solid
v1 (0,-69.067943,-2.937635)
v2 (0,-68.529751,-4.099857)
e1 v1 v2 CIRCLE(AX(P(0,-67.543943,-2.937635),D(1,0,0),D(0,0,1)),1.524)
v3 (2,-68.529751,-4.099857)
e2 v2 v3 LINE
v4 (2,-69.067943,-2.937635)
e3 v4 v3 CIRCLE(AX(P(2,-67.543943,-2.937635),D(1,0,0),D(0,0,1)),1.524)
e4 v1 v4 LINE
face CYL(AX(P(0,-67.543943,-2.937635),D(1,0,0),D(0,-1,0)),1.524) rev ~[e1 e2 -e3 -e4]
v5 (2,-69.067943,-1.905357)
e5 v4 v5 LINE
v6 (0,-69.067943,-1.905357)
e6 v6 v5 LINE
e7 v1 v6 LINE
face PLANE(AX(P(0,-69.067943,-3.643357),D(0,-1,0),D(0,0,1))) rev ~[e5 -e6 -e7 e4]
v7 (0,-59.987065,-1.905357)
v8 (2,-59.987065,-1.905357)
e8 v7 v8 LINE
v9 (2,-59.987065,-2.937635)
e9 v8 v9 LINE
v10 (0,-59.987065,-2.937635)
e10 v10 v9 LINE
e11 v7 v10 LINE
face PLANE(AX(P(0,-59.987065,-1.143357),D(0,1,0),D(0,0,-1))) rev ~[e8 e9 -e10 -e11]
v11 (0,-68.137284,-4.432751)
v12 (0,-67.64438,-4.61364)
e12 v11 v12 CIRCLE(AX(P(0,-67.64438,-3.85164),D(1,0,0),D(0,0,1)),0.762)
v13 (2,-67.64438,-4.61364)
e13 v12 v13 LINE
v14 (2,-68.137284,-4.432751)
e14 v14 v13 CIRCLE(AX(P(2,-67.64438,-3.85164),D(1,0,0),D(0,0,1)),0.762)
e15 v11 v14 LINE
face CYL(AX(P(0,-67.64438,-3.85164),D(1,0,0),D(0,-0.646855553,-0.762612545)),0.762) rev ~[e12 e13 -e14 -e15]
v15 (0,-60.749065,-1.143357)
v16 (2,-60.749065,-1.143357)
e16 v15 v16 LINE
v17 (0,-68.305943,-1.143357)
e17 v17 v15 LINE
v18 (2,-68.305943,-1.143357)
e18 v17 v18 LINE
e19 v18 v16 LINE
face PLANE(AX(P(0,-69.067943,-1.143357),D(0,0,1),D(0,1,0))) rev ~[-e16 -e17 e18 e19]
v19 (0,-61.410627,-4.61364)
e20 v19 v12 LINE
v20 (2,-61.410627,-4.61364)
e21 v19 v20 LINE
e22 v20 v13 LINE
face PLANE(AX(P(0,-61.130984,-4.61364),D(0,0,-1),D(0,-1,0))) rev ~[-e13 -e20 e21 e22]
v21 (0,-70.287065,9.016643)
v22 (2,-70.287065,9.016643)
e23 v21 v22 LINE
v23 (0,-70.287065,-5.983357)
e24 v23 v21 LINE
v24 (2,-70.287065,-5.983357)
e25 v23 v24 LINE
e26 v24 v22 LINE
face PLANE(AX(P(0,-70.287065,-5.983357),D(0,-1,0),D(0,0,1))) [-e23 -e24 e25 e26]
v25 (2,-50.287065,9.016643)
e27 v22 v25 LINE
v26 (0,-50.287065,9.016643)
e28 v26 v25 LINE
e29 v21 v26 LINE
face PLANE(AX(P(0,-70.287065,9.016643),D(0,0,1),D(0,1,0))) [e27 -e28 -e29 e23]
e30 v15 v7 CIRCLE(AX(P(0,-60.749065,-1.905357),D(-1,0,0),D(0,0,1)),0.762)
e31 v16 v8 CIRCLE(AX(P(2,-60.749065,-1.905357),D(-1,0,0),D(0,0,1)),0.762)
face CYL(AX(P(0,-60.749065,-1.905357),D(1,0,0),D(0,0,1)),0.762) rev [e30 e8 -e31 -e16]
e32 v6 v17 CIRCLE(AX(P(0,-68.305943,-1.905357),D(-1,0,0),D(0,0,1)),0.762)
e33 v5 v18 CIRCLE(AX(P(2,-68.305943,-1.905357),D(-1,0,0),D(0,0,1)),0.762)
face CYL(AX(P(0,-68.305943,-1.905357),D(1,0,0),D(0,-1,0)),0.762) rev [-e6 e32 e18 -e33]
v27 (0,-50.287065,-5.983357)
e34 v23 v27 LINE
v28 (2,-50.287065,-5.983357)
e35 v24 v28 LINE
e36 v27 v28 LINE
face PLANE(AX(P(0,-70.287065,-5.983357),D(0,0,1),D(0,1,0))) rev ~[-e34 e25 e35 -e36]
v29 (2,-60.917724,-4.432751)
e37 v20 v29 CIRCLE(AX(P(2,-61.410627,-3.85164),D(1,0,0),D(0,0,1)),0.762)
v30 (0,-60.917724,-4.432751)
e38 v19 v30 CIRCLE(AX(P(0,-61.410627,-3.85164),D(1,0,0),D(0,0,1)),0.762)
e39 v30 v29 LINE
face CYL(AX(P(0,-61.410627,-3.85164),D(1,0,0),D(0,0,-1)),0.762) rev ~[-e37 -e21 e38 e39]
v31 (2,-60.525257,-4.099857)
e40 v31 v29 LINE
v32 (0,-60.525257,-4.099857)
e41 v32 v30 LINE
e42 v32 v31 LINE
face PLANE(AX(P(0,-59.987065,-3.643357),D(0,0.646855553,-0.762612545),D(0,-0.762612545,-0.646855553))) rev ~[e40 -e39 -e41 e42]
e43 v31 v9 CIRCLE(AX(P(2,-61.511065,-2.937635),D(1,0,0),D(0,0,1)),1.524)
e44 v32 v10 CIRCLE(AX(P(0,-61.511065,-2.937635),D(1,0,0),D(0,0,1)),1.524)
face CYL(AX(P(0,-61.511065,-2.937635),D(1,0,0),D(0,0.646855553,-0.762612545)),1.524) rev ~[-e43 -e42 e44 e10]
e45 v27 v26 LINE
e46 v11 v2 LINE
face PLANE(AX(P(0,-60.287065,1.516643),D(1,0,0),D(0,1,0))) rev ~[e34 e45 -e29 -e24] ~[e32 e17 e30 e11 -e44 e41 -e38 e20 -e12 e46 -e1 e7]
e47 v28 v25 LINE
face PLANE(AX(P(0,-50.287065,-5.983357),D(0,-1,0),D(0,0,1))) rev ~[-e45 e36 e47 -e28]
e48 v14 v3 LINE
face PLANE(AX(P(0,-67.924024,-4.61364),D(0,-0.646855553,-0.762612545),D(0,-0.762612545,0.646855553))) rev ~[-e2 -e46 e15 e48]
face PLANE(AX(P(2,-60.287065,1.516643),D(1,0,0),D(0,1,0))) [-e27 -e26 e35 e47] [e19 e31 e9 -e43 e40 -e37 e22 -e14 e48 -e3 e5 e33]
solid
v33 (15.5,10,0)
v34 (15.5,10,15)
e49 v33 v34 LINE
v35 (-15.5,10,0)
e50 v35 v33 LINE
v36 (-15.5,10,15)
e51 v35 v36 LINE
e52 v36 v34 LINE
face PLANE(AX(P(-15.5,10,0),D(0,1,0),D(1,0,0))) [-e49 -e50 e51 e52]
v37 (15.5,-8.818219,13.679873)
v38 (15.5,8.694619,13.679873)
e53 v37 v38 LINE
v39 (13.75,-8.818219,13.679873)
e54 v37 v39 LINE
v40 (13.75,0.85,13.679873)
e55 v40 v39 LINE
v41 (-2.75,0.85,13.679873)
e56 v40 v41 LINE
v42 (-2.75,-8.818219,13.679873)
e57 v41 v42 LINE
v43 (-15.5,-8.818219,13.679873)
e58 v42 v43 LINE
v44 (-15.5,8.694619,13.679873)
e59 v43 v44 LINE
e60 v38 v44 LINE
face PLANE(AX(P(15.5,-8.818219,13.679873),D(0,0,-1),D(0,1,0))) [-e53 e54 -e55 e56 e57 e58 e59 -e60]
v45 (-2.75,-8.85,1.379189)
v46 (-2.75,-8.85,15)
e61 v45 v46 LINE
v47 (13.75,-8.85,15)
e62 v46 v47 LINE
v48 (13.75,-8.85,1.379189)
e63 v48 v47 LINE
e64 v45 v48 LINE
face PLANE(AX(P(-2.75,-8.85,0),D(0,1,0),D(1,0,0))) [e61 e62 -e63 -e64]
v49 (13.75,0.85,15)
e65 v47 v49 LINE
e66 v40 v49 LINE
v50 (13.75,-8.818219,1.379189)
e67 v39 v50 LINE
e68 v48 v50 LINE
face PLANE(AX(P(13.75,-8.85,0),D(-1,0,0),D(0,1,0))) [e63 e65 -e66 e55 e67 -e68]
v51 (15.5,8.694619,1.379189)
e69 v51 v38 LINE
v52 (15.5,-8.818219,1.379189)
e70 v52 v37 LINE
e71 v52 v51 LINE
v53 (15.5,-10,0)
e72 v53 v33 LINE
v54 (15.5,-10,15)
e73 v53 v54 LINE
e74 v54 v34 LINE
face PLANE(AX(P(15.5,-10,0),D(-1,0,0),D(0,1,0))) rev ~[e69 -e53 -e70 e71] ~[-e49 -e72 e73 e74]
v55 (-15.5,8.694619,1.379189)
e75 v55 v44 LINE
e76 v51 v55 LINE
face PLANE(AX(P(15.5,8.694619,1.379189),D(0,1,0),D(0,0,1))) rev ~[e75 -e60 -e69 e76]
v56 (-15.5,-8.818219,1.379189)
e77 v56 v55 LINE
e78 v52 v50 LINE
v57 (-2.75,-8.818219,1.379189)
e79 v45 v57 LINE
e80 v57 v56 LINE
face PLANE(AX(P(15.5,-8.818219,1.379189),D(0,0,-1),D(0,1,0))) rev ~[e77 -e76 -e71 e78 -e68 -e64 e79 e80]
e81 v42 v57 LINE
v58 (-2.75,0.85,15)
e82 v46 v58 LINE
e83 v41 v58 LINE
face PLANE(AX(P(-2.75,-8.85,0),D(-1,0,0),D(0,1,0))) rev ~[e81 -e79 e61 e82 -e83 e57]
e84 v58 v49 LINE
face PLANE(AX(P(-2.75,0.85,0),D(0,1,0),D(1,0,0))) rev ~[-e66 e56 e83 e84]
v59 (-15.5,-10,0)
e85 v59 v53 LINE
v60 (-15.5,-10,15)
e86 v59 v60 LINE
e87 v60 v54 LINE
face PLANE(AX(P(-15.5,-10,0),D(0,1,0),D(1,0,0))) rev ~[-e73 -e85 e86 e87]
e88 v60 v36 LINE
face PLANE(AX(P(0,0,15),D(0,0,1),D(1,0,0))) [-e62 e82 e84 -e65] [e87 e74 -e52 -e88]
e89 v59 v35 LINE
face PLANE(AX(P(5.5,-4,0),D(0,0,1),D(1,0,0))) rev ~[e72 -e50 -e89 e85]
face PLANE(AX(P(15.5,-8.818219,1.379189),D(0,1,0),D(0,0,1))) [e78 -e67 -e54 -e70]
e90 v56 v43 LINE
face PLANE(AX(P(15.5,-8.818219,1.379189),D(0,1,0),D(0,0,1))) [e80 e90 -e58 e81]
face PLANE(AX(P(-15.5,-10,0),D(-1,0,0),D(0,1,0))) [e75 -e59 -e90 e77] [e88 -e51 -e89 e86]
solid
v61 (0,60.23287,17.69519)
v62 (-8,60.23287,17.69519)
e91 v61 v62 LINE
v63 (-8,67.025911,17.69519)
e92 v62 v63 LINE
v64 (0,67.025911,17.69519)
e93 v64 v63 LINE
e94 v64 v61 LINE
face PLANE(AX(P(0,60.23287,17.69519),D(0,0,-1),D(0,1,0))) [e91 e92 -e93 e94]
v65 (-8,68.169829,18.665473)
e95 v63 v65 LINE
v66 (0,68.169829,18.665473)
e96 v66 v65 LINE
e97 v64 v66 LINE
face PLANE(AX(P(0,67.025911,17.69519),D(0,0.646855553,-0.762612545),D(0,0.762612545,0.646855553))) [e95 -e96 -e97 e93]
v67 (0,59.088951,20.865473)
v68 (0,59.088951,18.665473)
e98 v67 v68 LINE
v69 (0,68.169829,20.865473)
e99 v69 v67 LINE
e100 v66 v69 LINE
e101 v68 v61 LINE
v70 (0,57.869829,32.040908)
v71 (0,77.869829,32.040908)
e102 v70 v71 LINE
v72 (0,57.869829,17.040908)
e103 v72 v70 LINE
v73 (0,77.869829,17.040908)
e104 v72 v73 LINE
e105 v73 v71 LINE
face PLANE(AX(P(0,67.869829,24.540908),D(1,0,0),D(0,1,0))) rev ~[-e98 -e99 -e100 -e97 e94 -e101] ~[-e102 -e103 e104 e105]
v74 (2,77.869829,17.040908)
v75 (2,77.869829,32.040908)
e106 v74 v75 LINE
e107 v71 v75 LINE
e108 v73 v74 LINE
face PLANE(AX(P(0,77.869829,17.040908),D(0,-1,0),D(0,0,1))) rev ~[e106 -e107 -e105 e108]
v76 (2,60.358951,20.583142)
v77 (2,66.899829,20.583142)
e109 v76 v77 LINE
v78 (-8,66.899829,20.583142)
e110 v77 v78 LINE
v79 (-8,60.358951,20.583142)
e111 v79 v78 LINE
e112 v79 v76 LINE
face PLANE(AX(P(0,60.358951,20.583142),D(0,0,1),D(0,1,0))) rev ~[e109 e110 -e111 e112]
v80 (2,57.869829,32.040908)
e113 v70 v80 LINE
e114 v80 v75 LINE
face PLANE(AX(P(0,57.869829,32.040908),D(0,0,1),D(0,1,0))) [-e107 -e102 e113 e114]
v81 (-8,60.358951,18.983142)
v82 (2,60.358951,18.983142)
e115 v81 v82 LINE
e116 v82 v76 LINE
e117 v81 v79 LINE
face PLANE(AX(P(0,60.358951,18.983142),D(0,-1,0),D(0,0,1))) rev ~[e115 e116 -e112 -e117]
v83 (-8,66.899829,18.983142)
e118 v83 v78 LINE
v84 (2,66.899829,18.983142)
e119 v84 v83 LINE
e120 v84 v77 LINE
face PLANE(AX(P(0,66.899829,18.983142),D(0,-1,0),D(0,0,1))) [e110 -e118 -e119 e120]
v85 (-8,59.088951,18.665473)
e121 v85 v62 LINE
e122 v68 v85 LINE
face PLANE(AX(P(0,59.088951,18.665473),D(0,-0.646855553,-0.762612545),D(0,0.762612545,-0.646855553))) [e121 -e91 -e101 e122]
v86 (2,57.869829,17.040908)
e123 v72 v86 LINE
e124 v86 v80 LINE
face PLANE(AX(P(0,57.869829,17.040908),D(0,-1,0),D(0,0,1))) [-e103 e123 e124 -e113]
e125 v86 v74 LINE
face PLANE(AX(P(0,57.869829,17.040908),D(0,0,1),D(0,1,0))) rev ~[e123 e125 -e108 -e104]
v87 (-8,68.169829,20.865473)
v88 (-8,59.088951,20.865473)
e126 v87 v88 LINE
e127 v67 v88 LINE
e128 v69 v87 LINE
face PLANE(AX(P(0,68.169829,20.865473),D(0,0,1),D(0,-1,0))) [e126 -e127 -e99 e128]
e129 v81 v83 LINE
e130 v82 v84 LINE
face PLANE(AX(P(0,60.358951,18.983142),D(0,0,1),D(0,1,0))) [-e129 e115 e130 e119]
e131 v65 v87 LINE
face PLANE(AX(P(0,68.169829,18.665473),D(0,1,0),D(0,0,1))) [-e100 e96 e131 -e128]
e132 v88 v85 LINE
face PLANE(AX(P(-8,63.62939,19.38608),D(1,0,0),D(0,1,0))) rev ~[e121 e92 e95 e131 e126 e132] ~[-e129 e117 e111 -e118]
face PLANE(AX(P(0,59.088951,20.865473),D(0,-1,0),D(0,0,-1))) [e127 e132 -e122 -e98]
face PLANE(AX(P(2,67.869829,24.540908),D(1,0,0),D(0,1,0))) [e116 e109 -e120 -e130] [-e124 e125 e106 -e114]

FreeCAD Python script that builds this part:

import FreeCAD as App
import Part
import Sketcher
from FreeCAD import Vector
Q = App.Units.Quantity


def edges_at(feature, points):
    """Names of the edges that pass closest to the given points."""
    edges = feature.Shape.Edges
    near = lambda p: min(range(len(edges)), key=lambda i: edges[i].distToShape(Part.Vertex(*p))[0])
    return sorted({f"Edge{near(p) + 1}" for p in points})


def add_polygon(sketch, points):
    """Adds a closed chain of lines whose ends are joined by coincident constraints."""
    first, n = sketch.GeometryCount, len(points)
    for a, b in zip(points, points[1:] + points[:1]):
        sketch.addGeometry(Part.LineSegment(App.Vector(*a, 0), App.Vector(*b, 0)), False)
    for i in range(n):
        sketch.addConstraint(Sketcher.Constraint("Coincident", first + i, 2, first + (i + 1) % n, 1))

doc = App.newDocument("Part")
body = doc.addObject("PartDesign::Body", "Body")

sketch1 = body.newObject("Sketcher::SketchObject", "Sketch")
sketch1.AttachmentSupport = (doc.getObject("XY_Plane"), [""])
sketch1.MapMode = "FlatFace"
add_polygon(sketch1, [(-16, 10), (-16, -10), (16, -10), (16, 10)])
add_polygon(sketch1, [(14, -9), (-3, -9), (-3, 1), (14, 1)])
sketch1.addConstraint([
    Sketcher.Constraint("Vertical", 0),
    Sketcher.Constraint("Horizontal", 1),
    Sketcher.Constraint("Vertical", 2),
    Sketcher.Constraint("Horizontal", 3),
    Sketcher.Constraint("Horizontal", 4),
    Sketcher.Constraint("Vertical", 5),
    Sketcher.Constraint("Horizontal", 6),
    Sketcher.Constraint("Vertical", 7),
    Sketcher.Constraint("Symmetric", 0, 2, 2, 2, -1, 1),
    Sketcher.Constraint("DistanceX", 1, 1, 1, 2, Q("31 mm")),
    Sketcher.Constraint("DistanceY", 0, 2, 0, 1, Q("20 mm")),
    Sketcher.Constraint("DistanceX", 4, 2, 4, 1, Q("16.5 mm")),
    Sketcher.Constraint("DistanceY", 5, 1, 5, 2, Q("9.7 mm")),
    Sketcher.Constraint("DistanceX", 4, 2, -1, 1, Q("2.75 mm")),
    Sketcher.Constraint("DistanceY", 4, 2, -1, 1, Q("8.85 mm")),
])
pad1 = body.newObject("PartDesign::Pad", "Pad")
pad1.Profile = sketch1
pad1.Length = 15

sketch2 = body.newObject("Sketcher::SketchObject", "Sketch001")
sketch2.AttachmentSupport = (doc.getObject("YZ_Plane"), [""])
sketch2.MapMode = "FlatFace"
sketch2.AttachmentOffset = App.Placement(Vector(0, 0, 15.5), App.Rotation())
add_polygon(sketch2, [(-9, 14), (-9, 1), (9, 1), (9, 14)])
sketch2.addConstraint([
    Sketcher.Constraint("Vertical", 0),
    Sketcher.Constraint("Horizontal", 1),
    Sketcher.Constraint("Vertical", 2),
    Sketcher.Constraint("Horizontal", 3),
    Sketcher.Constraint("DistanceX", 1, 1, 1, 2, Q("17.512838 mm")),
    Sketcher.Constraint("DistanceY", 0, 2, 0, 1, Q("12.300684 mm")),
    Sketcher.Constraint("DistanceX", 0, 2, -1, 1, Q("8.818219 mm")),
    Sketcher.Constraint("DistanceY", -1, 1, 0, 2, Q("1.379189 mm")),
])
pocket1 = body.newObject("PartDesign::Pocket", "Pocket")
pocket1.Profile = sketch2
pocket1.Type = "ThroughAll"

sketch3 = body.newObject("Sketcher::SketchObject", "Sketch002")
sketch3.AttachmentSupport = (doc.getObject("YZ_Plane"), [""])
sketch3.MapMode = "FlatFace"
add_polygon(sketch3, [(-60, -3.6), (-60, -1.1), (-69.1, -1.1), (-69.1, -3.6), (-67.9, -4.6), (-61.1, -4.6)])
sketch3.addConstraint([
    Sketcher.Constraint("Vertical", 0),
    Sketcher.Constraint("Horizontal", 1),
    Sketcher.Constraint("Vertical", 2),
    Sketcher.Constraint("Horizontal", 4),
    Sketcher.Constraint("Horizontal", 2, 2, 5, 2),
    Sketcher.Constraint("Equal", 3, 5),
    Sketcher.Constraint("DistanceY", 0, 1, 0, 2, Q("2.5 mm")),
    Sketcher.Constraint("Distance", 3, Q("1.5 mm")),
    Sketcher.Constraint("DistanceX", 1, 2, 1, 1, Q("9.080878 mm")),
    Sketcher.Constraint("DistanceX", 4, 1, 4, 2, Q("6.793041 mm")),
    Sketcher.Constraint("DistanceY", 3, 2, -1, 1, Q("4.61364 mm")),
    Sketcher.Constraint("DistanceX", 0, 2, -1, 1, Q("59.987065 mm")),
])
pocket2 = body.newObject("PartDesign::Pocket", "Pocket001")
pocket2.Profile = sketch3
pocket2.Type = "ThroughAll"

sketch4 = body.newObject("Sketcher::SketchObject", "Sketch003")
sketch4.AttachmentSupport = (doc.getObject("XY_Plane"), [""])
sketch4.MapMode = "FlatFace"
add_polygon(sketch4, [(-3, 1), (-3, -9), (14, -9), (14, 1)])
sketch4.addConstraint([
    Sketcher.Constraint("Vertical", 0),
    Sketcher.Constraint("Horizontal", 1),
    Sketcher.Constraint("Vertical", 2),
    Sketcher.Constraint("Horizontal", 3),
    Sketcher.Constraint("DistanceX", 1, 1, 1, 2, Q("16.5 mm")),
    Sketcher.Constraint("DistanceY", 0, 2, 0, 1, Q("9.7 mm")),
    Sketcher.Constraint("DistanceX", 0, 2, -1, 1, Q("2.75 mm")),
    Sketcher.Constraint("DistanceY", 0, 2, -1, 1, Q("8.85 mm")),
])
pad2 = body.newObject("PartDesign::Pad", "Pad001")
pad2.Profile = sketch4
pad2.Length = 1.379189
body2 = doc.addObject("PartDesign::Body", "Body001")

sketch5 = body2.newObject("Sketcher::SketchObject", "Sketch004")
sketch5.AttachmentSupport = (doc.getObject("YZ_Plane001"), [""])
sketch5.MapMode = "FlatFace"
add_polygon(sketch5, [(-70.3, 9), (-70.3, -6), (-50.3, -6), (-50.3, 9)])
add_polygon(sketch5, [(-69.1, -3.6), (-69.1, -1.1), (-60, -1.1), (-60, -3.6), (-61.1, -4.6), (-67.9, -4.6)])
sketch5.addConstraint([
    Sketcher.Constraint("Vertical", 0),
    Sketcher.Constraint("Horizontal", 1),
    Sketcher.Constraint("Vertical", 2),
    Sketcher.Constraint("Horizontal", 3),
    Sketcher.Constraint("Vertical", 4),
    Sketcher.Constraint("Horizontal", 5),
    Sketcher.Constraint("Vertical", 6),
    Sketcher.Constraint("Horizontal", 8),
    Sketcher.Constraint("Horizontal", 6, 2, 9, 2),
    Sketcher.Constraint("Equal", 7, 9),
    Sketcher.Constraint("DistanceX", 1, 1, 1, 2, Q("20 mm")),
    Sketcher.Constraint("DistanceY", 0, 2, 0, 1, Q("15 mm")),
    Sketcher.Constraint("DistanceY", 4, 1, 4, 2, Q("2.5 mm")),
    Sketcher.Constraint("Distance", 7, Q("1.5 mm")),
    Sketcher.Constraint("DistanceX", 5, 2, 1, 2, Q("9.7 mm")),
    Sketcher.Constraint("DistanceY", 0, 2, 4, 2, Q("4.84 mm")),
    Sketcher.Constraint("DistanceX", 5, 1, 5, 2, Q("9.080878 mm")),
    Sketcher.Constraint("DistanceX", 8, 2, 8, 1, Q("6.793041 mm")),
    Sketcher.Constraint("DistanceY", 7, 2, -1, 1, Q("4.61364 mm")),
    Sketcher.Constraint("DistanceX", 0, 2, -1, 1, Q("70.287065 mm")),
])
pad3 = body2.newObject("PartDesign::Pad", "Pad002")
pad3.Profile = sketch5
pad3.Length = 2
doc.recompute()

fillet = body2.newObject("PartDesign::Fillet", "Fillet")
fillet.Base = (pad3, edges_at(pad3, [(1, -59.987, -3.643), (1, -69.068, -3.643)]))
fillet.Radius = 1.524
doc.recompute()

fillet2 = body2.newObject("PartDesign::Fillet", "Fillet001")
fillet2.Base = (fillet, edges_at(fillet, [
    (1, -59.987, -1.143),
    (1, -69.068, -1.143),
    (1, -61.131, -4.614),
    (1, -67.924, -4.614),
]))
fillet2.Radius = 0.762
body3 = doc.addObject("PartDesign::Body", "Body002")

sketch6 = body3.newObject("Sketcher::SketchObject", "Sketch005")
sketch6.AttachmentSupport = (doc.getObject("YZ_Plane002"), [""])
sketch6.MapMode = "FlatFace"
add_polygon(sketch6, [(57.9, 32), (57.9, 17), (77.9, 17), (77.9, 32)])
add_polygon(sketch6, [(59.1, 20.9), (68.2, 20.9), (68.2, 18.7), (67, 17.7), (60.2, 17.7), (59.1, 18.7)])
sketch6.addConstraint([
    Sketcher.Constraint("Vertical", 0),
    Sketcher.Constraint("Horizontal", 1),
    Sketcher.Constraint("Vertical", 2),
    Sketcher.Constraint("Horizontal", 3),
    Sketcher.Constraint("Horizontal", 4),
    Sketcher.Constraint("Vertical", 5),
    Sketcher.Constraint("Horizontal", 7),
    Sketcher.Constraint("Vertical", 9),
    Sketcher.Constraint("Horizontal", 5, 2, 8, 2),
    Sketcher.Constraint("Equal", 6, 8),
    Sketcher.Constraint("DistanceX", 1, 1, 1, 2, Q("20 mm")),
    Sketcher.Constraint("DistanceY", 0, 2, 0, 1, Q("15 mm")),
    Sketcher.Constraint("DistanceY", 5, 2, 5, 1, Q("2.2 mm")),
    Sketcher.Constraint("Distance", 6, Q("1.5 mm")),
    Sketcher.Constraint("DistanceX", 4, 2, 1, 2, Q("9.7 mm")),
    Sketcher.Constraint("DistanceX", 4, 1, 4, 2, Q("9.080878 mm")),
    Sketcher.Constraint("DistanceX", 7, 2, 7, 1, Q("6.793041 mm")),
    Sketcher.Constraint("DistanceX", -1, 1, 0, 2, Q("57.869829 mm")),
    Sketcher.Constraint("DistanceY", -1, 1, 0, 2, Q("17.040908 mm")),
    Sketcher.Constraint("DistanceY", -1, 1, 6, 2, Q("17.69519 mm")),
])
pad4 = body3.newObject("PartDesign::Pad", "Pad003")
pad4.Profile = sketch6
pad4.Length = 2
doc.recompute()

fillet3 = body3.newObject("PartDesign::Fillet", "Fillet002")
fillet3.Base = (pad4, edges_at(pad4, [(1, 68.17, 18.665), (1, 59.089, 18.665)]))
fillet3.Radius = 1.524
doc.recompute()

fillet4 = body3.newObject("PartDesign::Fillet", "Fillet003")
fillet4.Base = (fillet3, edges_at(fillet3, [(1, 68.17, 20.865), (1, 59.089, 20.865)]))
fillet4.Radius = 0.508

sketch7 = body3.newObject("Sketcher::SketchObject", "Sketch006")
sketch7.AttachmentSupport = (doc.getObject("YZ_Plane002"), [""])
sketch7.MapMode = "FlatFace"
add_polygon(sketch7, [(68.2, 18.7), (68.2, 20.9), (59.1, 20.9), (59.1, 18.7), (60.2, 17.7), (67, 17.7)])
add_polygon(sketch7, [(66.9, 19), (60.4, 19), (60.4, 20.6), (66.9, 20.6)])
sketch7.addConstraint([
    Sketcher.Constraint("Vertical", 0),
    Sketcher.Constraint("Horizontal", 1),
    Sketcher.Constraint("Vertical", 2),
    Sketcher.Constraint("Horizontal", 4),
    Sketcher.Constraint("Horizontal", 6),
    Sketcher.Constraint("Vertical", 7),
    Sketcher.Constraint("Horizontal", 8),
    Sketcher.Constraint("Vertical", 9),
    Sketcher.Constraint("Horizontal", 2, 2, 5, 2),
    Sketcher.Constraint("Equal", 3, 5),
    Sketcher.Constraint("DistanceY", 0, 1, 0, 2, Q("2.2 mm")),
    Sketcher.Constraint("DistanceY", 7, 1, 7, 2, Q("1.6 mm")),
    Sketcher.Constraint("Distance", 3, Q("1.5 mm")),
    Sketcher.Constraint("DistanceX", 2, 2, 6, 2, Q("1.27 mm")),
    Sketcher.Constraint("DistanceX", 8, 2, 0, 2, Q("1.27 mm")),
    Sketcher.Constraint("DistanceX", 1, 2, 1, 1, Q("9.080878 mm")),
    Sketcher.Constraint("DistanceX", 4, 1, 4, 2, Q("6.793041 mm")),
    Sketcher.Constraint("DistanceX", -1, 1, 0, 2, Q("68.169829 mm")),
    Sketcher.Constraint("DistanceY", -1, 1, 3, 2, Q("17.69519 mm")),
    Sketcher.Constraint("DistanceY", 2, 2, 6, 2, Q("0.317669 mm")),
])
pad5 = body3.newObject("PartDesign::Pad", "Pad004")
pad5.Profile = sketch7
pad5.Type = "TwoLengths"
pad5.Length = 8
pad5.Length2 = 2
pad5.Reversed = True

doc.recompute()
